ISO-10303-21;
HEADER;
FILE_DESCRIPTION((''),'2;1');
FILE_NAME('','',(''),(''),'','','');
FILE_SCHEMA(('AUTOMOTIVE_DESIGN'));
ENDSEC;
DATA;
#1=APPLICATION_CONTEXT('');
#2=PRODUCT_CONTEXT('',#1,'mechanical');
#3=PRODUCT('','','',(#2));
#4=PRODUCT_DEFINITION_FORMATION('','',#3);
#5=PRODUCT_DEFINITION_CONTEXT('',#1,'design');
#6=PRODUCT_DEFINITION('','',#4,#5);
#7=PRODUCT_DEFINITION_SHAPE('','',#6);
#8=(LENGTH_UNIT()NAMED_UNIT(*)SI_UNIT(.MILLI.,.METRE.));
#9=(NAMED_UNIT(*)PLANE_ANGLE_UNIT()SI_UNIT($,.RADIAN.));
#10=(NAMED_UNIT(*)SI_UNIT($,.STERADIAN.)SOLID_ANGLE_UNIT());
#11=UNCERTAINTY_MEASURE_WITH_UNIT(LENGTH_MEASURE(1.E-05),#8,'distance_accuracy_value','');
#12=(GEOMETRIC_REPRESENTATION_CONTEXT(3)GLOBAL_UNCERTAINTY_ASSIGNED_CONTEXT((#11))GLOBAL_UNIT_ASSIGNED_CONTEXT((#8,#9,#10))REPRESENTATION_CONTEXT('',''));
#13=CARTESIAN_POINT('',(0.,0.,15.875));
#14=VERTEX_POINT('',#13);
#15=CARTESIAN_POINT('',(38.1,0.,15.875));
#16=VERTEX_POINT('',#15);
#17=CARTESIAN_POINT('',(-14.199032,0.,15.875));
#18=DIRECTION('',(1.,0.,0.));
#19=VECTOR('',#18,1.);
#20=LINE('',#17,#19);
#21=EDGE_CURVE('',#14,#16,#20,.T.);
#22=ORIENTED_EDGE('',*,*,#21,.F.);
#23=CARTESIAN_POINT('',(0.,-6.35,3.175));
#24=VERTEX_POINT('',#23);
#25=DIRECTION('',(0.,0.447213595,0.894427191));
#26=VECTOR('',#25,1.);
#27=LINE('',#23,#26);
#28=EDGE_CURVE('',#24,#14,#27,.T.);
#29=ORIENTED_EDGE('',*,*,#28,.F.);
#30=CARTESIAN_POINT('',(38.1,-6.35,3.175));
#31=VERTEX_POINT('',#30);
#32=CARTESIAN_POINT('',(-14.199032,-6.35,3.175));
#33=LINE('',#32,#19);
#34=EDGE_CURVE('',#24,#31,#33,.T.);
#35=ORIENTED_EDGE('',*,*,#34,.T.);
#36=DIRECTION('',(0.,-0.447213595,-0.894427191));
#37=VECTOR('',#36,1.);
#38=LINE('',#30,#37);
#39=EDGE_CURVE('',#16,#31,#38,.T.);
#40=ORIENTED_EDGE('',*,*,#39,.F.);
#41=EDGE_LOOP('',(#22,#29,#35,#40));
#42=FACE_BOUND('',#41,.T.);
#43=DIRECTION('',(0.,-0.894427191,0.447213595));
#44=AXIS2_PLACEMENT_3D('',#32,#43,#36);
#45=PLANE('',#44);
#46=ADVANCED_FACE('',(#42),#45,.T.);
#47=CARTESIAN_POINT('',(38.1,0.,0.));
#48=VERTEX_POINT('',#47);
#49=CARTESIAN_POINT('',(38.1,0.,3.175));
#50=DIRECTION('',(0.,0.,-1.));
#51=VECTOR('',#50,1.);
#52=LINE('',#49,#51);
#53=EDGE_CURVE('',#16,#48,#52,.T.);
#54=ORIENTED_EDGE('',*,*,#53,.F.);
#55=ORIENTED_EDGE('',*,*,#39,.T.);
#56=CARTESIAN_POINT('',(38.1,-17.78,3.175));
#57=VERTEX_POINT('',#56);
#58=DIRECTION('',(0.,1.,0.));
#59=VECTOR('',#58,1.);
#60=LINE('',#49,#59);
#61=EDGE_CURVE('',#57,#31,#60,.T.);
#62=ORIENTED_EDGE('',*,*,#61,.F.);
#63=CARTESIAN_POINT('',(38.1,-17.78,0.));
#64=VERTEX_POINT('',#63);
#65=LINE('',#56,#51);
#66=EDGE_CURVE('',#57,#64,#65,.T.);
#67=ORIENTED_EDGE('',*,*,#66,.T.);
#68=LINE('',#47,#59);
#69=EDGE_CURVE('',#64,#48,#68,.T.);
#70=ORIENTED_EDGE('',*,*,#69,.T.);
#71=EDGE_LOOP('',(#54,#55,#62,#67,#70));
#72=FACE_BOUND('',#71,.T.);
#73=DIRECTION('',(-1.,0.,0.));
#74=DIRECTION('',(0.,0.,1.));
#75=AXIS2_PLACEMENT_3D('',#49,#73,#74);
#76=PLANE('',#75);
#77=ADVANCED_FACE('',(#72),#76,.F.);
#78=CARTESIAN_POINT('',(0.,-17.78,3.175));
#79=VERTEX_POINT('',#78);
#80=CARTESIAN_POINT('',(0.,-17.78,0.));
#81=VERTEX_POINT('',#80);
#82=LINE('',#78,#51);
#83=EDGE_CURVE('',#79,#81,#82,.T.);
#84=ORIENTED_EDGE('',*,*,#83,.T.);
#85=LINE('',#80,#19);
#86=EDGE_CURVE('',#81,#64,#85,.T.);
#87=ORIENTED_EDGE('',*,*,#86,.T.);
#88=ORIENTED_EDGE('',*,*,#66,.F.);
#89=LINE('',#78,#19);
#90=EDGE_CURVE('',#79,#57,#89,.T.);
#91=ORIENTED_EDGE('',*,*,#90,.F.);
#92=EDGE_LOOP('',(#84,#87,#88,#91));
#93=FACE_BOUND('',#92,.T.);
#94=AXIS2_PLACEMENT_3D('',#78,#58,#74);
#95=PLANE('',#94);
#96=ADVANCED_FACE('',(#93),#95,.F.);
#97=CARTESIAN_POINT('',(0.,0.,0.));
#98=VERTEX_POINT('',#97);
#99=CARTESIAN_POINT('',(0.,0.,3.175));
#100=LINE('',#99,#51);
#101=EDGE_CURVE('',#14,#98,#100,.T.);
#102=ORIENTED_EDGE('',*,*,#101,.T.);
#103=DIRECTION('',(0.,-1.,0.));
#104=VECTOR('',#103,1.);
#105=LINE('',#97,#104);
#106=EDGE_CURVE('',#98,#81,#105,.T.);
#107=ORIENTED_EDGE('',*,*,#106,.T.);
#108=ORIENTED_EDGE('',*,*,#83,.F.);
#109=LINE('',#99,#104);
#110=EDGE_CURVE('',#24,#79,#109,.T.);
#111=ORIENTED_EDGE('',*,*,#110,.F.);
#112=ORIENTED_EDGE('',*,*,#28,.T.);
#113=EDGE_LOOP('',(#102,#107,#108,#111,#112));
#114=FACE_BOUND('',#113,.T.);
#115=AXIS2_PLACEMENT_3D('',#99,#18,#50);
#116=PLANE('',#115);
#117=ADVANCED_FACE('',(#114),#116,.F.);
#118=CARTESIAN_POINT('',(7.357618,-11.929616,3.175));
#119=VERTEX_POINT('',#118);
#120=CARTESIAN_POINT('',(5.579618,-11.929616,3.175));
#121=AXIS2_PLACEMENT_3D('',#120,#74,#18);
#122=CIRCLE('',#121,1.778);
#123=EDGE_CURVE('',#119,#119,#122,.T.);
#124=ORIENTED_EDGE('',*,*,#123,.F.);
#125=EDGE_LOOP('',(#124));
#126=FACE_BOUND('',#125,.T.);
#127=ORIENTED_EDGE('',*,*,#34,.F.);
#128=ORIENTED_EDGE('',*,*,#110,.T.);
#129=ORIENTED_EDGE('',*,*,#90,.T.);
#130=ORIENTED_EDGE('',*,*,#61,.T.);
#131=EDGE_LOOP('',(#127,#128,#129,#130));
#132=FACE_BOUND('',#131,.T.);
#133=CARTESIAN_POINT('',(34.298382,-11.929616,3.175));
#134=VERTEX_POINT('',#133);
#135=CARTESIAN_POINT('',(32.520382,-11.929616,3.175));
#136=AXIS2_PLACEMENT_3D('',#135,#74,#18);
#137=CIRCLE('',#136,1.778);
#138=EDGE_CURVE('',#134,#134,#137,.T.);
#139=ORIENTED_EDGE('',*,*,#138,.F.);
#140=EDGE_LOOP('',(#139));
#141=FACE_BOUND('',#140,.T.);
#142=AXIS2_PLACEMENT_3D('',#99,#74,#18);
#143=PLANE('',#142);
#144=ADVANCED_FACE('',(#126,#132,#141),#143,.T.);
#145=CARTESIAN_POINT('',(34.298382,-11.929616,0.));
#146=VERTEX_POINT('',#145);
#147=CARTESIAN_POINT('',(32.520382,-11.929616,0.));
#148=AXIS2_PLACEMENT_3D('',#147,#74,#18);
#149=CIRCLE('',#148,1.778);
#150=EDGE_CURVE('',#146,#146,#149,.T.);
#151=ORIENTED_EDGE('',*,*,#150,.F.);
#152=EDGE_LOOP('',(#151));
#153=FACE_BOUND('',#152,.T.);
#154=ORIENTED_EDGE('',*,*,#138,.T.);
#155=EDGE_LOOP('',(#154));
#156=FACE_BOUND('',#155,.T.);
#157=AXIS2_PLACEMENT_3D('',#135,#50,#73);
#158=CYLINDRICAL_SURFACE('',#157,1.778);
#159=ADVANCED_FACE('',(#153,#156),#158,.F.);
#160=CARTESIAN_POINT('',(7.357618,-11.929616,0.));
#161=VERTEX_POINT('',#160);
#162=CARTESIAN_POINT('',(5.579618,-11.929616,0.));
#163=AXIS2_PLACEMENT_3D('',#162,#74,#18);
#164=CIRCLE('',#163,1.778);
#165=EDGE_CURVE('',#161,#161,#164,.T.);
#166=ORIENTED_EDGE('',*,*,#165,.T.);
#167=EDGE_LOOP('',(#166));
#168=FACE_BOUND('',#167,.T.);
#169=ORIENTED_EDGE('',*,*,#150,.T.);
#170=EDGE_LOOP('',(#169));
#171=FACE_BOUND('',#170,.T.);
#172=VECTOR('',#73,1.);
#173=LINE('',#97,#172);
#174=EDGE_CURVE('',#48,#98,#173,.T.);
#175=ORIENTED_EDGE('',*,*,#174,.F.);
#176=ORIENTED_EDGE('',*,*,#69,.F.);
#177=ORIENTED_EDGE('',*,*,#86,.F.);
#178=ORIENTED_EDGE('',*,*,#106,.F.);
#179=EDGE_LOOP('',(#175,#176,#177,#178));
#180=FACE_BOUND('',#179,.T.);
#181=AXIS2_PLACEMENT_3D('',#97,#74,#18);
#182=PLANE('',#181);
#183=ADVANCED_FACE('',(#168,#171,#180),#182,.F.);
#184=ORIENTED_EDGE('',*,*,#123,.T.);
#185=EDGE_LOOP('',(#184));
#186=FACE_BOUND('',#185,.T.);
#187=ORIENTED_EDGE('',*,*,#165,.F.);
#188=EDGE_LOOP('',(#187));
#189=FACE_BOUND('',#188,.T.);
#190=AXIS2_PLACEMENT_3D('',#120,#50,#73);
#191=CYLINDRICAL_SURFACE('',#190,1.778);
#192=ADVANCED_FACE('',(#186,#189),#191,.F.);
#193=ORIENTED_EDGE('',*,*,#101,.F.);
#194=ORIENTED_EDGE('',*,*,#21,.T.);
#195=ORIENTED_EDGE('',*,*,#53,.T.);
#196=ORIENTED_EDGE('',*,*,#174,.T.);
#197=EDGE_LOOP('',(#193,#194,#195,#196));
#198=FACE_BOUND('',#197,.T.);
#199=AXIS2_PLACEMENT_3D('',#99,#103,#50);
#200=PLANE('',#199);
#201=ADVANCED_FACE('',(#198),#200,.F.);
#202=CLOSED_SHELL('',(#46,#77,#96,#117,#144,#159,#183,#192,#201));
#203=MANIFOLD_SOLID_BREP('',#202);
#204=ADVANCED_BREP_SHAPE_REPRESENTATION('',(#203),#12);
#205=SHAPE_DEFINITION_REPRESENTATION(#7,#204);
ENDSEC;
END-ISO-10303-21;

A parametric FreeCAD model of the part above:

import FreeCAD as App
import Part
import Sketcher
Q = App.Units.Quantity


def add_polygon(sketch, points):
    """Adds a closed chain of lines whose ends are joined by coincident constraints."""
    first, n = sketch.GeometryCount, len(points)
    for a, b in zip(points, points[1:] + points[:1]):
        sketch.addGeometry(Part.LineSegment(App.Vector(*a, 0), App.Vector(*b, 0)), False)
    for i in range(n):
        sketch.addConstraint(Sketcher.Constraint("Coincident", first + i, 2, first + (i + 1) % n, 1))

doc = App.newDocument("Part")
body = doc.addObject("PartDesign::Body", "Body")

sketch1 = body.newObject("Sketcher::SketchObject", "Sketch")
sketch1.AttachmentSupport = (doc.getObject("XY_Plane"), [""])
sketch1.MapMode = "FlatFace"
add_polygon(sketch1, [(0, 0), (0, -17.8), (38.1, -17.8), (38.1, 0)])
sketch1.addGeometry(Part.Circle(App.Vector(5.6, -11.9, 0), App.Vector(0, 0, 1), 1.8), False)
sketch1.addGeometry(Part.Circle(App.Vector(32.5, -11.9, 0), App.Vector(0, 0, 1), 1.8), False)
sketch1.addConstraint([
    Sketcher.Constraint("Vertical", 0),
    Sketcher.Constraint("Horizontal", 1),
    Sketcher.Constraint("Vertical", 2),
    Sketcher.Constraint("Horizontal", 3),
    Sketcher.Constraint("Coincident", 3, 2, -1, 1),
    Sketcher.Constraint("Equal", 4, 5),
    Sketcher.Constraint("Horizontal", 4, 3, 5, 3),
    Sketcher.Constraint("Diameter", 4, Q("0.14 in")),
    Sketcher.Constraint("DistanceX", 1, 1, 1, 2, Q("1.5 in")),
    Sketcher.Constraint("DistanceY", 0, 2, 0, 1, Q("0.7 in")),
    Sketcher.Constraint("DistanceX", -1, 1, 5, 3, Q("32.520382 mm")),
    Sketcher.Constraint("DistanceX", 4, 3, 1, 2, Q("32.520382 mm")),
    Sketcher.Constraint("DistanceY", 4, 3, -1, 1, Q("11.929616 mm")),
])
pad1 = body.newObject("PartDesign::Pad", "Pad")
pad1.Profile = sketch1
pad1.Length = Q("0.125 in")

sketch2 = body.newObject("Sketcher::SketchObject", "Sketch001")
sketch2.AttachmentSupport = (doc.getObject("YZ_Plane"), [""])
sketch2.MapMode = "FlatFace"
sketch2.AttachmentOffset = App.Placement(App.Vector(0, 0, 1.5 * 25.4), App.Rotation())
add_polygon(sketch2, [(0, 16), (-6, 3), (0, 3)])
sketch2.addConstraint([
    Sketcher.Constraint("Horizontal", 1),
    Sketcher.Constraint("Vertical", 2),
    Sketcher.Constraint("PointOnObject", 1, 2, -2),
    Sketcher.Constraint("DistanceY", 2, 1, 2, 2, Q("0.5 in")),
    Sketcher.Constraint("DistanceX", 1, 1, 1, 2, Q("0.25 in")),
    Sketcher.Constraint("DistanceY", -1, 1, 0, 2, Q("0.125 in")),
])
pad2 = body.newObject("PartDesign::Pad", "Pad001")
pad2.Profile = sketch2
pad2.Length = Q("1.5 in")
pad2.Reversed = True

doc.recompute()
